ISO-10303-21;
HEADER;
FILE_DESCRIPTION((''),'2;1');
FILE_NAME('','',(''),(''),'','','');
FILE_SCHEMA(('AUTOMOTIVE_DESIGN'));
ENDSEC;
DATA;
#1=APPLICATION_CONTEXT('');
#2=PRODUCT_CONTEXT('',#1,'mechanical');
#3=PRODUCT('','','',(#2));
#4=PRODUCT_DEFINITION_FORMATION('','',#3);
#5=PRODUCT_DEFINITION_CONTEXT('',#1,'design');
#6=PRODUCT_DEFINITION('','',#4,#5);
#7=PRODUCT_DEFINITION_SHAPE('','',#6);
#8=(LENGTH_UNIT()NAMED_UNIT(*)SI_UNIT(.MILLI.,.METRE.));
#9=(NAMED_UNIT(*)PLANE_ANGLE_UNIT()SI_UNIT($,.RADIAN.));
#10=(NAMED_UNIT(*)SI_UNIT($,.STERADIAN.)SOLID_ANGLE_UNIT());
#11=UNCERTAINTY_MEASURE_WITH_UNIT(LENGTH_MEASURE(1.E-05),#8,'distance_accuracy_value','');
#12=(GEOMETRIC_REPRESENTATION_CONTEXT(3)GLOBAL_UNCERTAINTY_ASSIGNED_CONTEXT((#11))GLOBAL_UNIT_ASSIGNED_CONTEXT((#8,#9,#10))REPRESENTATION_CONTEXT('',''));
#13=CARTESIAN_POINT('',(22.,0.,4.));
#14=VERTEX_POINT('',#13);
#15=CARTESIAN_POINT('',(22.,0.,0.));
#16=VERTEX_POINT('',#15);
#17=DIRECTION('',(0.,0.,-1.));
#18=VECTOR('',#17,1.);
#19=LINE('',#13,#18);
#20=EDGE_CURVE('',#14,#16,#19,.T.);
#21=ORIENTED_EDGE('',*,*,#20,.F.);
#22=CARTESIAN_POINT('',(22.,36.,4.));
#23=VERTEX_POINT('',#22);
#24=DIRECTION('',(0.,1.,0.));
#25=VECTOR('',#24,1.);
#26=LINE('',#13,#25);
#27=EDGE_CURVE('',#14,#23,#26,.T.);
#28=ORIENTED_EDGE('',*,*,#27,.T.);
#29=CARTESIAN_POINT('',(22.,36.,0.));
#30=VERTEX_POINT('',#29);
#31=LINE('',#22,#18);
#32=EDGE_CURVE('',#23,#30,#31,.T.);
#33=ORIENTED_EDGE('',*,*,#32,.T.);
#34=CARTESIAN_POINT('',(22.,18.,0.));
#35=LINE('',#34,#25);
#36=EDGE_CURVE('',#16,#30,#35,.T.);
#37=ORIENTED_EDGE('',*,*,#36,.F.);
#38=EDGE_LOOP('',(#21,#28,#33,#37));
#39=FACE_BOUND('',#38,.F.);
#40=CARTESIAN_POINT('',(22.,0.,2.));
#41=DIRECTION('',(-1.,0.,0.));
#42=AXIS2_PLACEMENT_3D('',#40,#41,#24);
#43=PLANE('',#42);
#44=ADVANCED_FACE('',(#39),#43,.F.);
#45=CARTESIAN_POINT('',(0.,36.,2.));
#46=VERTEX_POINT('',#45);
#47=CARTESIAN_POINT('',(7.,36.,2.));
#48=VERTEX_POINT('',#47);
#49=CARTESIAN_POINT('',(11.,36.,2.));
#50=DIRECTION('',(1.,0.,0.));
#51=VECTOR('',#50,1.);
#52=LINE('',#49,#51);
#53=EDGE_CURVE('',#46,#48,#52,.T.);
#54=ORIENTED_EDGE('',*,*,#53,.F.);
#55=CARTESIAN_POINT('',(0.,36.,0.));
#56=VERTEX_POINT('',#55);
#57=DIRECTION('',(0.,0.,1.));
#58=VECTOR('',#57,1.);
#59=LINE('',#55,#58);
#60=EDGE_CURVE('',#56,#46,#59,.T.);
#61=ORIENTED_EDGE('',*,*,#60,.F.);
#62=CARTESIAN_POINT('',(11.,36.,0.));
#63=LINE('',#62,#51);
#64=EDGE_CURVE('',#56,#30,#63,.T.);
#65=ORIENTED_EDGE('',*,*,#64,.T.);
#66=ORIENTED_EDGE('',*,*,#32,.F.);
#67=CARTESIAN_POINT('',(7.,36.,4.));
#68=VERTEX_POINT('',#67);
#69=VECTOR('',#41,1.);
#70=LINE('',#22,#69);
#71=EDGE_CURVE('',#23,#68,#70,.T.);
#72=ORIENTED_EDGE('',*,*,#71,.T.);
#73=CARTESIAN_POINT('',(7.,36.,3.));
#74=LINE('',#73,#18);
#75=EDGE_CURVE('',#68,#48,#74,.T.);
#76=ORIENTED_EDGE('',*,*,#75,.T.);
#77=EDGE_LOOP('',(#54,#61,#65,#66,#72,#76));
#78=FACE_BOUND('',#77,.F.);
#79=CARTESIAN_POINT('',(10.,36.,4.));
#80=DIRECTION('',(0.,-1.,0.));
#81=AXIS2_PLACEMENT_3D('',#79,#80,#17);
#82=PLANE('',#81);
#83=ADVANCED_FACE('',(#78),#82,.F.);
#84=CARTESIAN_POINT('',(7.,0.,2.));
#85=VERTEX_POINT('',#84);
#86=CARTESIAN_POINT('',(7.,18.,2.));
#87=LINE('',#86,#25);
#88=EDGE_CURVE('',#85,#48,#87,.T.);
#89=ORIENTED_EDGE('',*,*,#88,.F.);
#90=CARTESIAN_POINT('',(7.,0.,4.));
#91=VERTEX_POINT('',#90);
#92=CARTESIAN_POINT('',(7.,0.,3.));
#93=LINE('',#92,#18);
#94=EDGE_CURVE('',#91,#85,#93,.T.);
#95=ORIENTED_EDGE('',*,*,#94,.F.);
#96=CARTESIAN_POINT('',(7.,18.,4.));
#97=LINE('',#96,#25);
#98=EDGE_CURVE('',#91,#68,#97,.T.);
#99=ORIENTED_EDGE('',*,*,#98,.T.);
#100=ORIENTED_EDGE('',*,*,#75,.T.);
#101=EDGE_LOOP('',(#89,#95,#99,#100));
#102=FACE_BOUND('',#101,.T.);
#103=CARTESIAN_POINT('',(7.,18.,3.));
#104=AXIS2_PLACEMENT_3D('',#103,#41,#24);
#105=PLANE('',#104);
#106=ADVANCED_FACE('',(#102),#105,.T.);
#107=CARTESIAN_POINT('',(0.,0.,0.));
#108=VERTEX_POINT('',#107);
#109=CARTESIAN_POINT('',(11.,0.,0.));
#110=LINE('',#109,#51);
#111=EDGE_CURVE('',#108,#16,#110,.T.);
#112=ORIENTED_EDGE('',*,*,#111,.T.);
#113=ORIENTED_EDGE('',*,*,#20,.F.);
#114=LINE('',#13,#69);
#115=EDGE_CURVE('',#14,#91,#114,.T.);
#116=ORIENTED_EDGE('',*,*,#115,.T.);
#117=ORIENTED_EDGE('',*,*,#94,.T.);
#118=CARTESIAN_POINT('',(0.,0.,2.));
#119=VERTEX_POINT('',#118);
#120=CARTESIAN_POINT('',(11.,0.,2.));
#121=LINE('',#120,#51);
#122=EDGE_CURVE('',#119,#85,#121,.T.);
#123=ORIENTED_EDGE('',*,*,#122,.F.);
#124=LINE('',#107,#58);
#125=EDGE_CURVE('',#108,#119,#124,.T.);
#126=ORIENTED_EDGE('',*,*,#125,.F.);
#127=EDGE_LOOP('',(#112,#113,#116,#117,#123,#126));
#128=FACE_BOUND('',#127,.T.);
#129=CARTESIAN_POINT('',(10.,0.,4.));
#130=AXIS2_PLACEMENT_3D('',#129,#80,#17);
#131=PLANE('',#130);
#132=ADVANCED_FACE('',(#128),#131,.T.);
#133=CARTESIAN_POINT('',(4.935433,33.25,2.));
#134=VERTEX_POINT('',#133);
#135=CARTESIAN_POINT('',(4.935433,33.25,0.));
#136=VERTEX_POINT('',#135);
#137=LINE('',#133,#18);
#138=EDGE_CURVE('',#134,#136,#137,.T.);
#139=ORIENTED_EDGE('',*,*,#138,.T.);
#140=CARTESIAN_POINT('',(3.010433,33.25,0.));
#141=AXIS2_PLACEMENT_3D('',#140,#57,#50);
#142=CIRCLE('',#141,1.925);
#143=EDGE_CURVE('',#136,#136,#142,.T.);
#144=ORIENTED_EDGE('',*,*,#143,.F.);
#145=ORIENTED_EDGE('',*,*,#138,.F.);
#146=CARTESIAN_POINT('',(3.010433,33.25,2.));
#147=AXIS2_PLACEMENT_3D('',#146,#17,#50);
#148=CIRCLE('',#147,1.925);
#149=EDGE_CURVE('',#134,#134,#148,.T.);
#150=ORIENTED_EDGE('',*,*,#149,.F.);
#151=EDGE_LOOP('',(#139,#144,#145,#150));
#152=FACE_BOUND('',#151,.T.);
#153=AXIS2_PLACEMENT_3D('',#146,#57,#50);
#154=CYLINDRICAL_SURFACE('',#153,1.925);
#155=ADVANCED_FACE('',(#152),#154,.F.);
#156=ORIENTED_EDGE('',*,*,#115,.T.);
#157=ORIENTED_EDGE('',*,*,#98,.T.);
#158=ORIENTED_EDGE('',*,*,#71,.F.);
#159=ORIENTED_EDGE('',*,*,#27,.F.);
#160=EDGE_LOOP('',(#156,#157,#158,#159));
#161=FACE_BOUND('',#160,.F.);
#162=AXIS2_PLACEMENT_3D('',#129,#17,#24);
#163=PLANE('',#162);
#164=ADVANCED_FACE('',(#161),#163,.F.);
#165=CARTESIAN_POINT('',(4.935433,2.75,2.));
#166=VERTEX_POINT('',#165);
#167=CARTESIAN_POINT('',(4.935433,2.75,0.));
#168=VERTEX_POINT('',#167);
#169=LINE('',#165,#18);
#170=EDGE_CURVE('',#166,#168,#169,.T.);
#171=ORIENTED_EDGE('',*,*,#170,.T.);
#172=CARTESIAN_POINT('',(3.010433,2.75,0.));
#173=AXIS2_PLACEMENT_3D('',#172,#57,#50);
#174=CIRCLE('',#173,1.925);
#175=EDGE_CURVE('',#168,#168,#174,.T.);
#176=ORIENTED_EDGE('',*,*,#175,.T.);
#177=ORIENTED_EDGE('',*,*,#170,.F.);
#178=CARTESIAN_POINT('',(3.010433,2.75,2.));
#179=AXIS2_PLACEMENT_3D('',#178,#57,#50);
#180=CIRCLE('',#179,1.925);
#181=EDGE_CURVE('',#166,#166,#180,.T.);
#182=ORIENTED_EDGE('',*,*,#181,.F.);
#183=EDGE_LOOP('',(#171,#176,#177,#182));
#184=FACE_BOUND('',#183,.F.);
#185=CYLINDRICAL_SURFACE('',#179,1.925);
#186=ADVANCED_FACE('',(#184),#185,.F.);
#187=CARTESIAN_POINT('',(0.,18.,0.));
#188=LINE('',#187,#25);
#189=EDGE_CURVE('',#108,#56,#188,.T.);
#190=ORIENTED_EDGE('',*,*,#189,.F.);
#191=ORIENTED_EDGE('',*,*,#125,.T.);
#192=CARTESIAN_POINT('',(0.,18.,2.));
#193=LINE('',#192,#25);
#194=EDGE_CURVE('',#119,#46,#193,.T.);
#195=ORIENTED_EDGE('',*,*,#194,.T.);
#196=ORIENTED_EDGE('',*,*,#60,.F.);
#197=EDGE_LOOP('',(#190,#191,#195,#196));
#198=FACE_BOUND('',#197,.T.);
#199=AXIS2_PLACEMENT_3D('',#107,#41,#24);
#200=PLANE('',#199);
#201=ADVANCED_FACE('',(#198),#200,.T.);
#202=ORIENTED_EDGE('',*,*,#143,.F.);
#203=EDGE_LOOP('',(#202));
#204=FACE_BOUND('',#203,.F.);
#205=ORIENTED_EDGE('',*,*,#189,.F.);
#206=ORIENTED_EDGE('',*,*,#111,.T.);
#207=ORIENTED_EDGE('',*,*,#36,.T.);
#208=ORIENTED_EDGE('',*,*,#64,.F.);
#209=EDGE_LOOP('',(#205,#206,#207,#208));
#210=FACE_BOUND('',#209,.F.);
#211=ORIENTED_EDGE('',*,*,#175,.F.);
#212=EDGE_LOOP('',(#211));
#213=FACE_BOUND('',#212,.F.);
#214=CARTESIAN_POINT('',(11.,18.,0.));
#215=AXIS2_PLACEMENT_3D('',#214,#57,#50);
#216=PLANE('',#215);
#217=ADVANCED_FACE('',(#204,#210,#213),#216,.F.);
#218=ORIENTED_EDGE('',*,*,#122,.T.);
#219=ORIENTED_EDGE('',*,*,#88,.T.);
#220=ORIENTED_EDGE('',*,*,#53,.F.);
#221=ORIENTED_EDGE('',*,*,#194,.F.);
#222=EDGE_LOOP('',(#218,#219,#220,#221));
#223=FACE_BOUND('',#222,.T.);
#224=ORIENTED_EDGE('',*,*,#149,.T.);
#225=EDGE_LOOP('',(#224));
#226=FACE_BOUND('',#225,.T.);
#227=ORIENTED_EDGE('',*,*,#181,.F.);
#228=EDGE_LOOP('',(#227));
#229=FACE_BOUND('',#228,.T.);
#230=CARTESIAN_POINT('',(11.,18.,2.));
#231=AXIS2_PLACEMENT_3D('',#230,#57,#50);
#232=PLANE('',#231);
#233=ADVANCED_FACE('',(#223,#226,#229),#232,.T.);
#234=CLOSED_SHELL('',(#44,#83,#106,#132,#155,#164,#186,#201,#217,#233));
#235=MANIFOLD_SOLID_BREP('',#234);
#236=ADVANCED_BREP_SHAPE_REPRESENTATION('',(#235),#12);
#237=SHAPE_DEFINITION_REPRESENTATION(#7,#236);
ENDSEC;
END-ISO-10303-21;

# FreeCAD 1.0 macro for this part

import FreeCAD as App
import Part
import Sketcher
Q = App.Units.Quantity


def add_polygon(sketch, points):
    """Adds a closed chain of lines whose ends are joined by coincident constraints."""
    first, n = sketch.GeometryCount, len(points)
    for a, b in zip(points, points[1:] + points[:1]):
        sketch.addGeometry(Part.LineSegment(App.Vector(*a, 0), App.Vector(*b, 0)), False)
    for i in range(n):
        sketch.addConstraint(Sketcher.Constraint("Coincident", first + i, 2, first + (i + 1) % n, 1))

doc = App.newDocument("Part")
body = doc.addObject("PartDesign::Body", "Body")

# Sketch on XY plane
sketch1 = body.newObject("Sketcher::SketchObject", "Sketch")
sketch1.AttachmentSupport = (doc.getObject("XY_Plane"), [""])
sketch1.MapMode = "FlatFace"
add_polygon(sketch1, [(0, 36), (0, 0), (22, 0), (22, 36)])  # lines 0-3
sketch1.addConstraint(Sketcher.Constraint("Vertical", 0))
sketch1.addConstraint(Sketcher.Constraint("Horizontal", 1))
sketch1.addConstraint(Sketcher.Constraint("Vertical", 2))
sketch1.addConstraint(Sketcher.Constraint("Horizontal", 3))
sketch1.addConstraint(Sketcher.Constraint("Coincident", 0, 2, -1, 1))
sketch1.addConstraint(Sketcher.Constraint("DistanceX", 1, 1, 1, 2, Q("22 mm")))
sketch1.addConstraint(Sketcher.Constraint("DistanceY", 0, 2, 0, 1, Q("36 mm")))
pad1 = body.newObject("PartDesign::Pad", "Pad")
pad1.Profile = sketch1
pad1.Length = 2

# Sketch on XY plane
sketch2 = body.newObject("Sketcher::SketchObject", "Sketch001")
sketch2.AttachmentSupport = (doc.getObject("XY_Plane"), [""])
sketch2.MapMode = "FlatFace"
sketch2.AttachmentOffset = App.Placement(App.Vector(0, 0, 2), App.Rotation())
sketch2.addGeometry(Part.Circle(App.Vector(3, 2.8, 0), App.Vector(0, 0, 1), 1.9), False)
sketch2.addConstraint(Sketcher.Constraint("Diameter", 0, Q("3.85 mm")))
sketch2.addConstraint(Sketcher.Constraint("DistanceY", -1, 1, 0, 3, Q("2.75 mm")))
sketch2.addConstraint(Sketcher.Constraint("DistanceX", -1, 1, 0, 3, Q("3.010433 mm")))
pocket1 = body.newObject("PartDesign::Pocket", "Pocket")
pocket1.Profile = sketch2
pocket1.Type = "ThroughAll"
doc.recompute()

datumplane = body.newObject("PartDesign::Plane", "DatumPlane")
datumplane.AttachmentSupport = (doc.getObject("XZ_Plane"), [""])
datumplane.MapMode = "FlatFace"
datumplane.AttachmentOffset = App.Placement(App.Vector(0, 0, -18), App.Rotation())
mirrored = body.newObject("PartDesign::Mirrored", "Mirrored")
mirrored.Originals = [pocket1]
mirrored.MirrorPlane = (datumplane, [""])
body.Tip = mirrored

# Sketch on XY plane
sketch3 = body.newObject("Sketcher::SketchObject", "Sketch002")
sketch3.AttachmentSupport = (doc.getObject("XY_Plane"), [""])
sketch3.MapMode = "FlatFace"
sketch3.AttachmentOffset = App.Placement(App.Vector(0, 0, 2), App.Rotation())
add_polygon(sketch3, [(10, 36), (10, 34), (20, 34), (20, 2), (10, 2), (10, 0), (22, 0), (22, 36)])  # lines 0-7
sketch3.addConstraint(Sketcher.Constraint("Vertical", 0))
sketch3.addConstraint(Sketcher.Constraint("Horizontal", 1))
sketch3.addConstraint(Sketcher.Constraint("Vertical", 2))
sketch3.addConstraint(Sketcher.Constraint("Horizontal", 3))
sketch3.addConstraint(Sketcher.Constraint("Vertical", 4))
sketch3.addConstraint(Sketcher.Constraint("Horizontal", 5))
sketch3.addConstraint(Sketcher.Constraint("Vertical", 6))
sketch3.addConstraint(Sketcher.Constraint("Horizontal", 7))
sketch3.addConstraint(Sketcher.Constraint("PointOnObject", 4, 2, -1))
sketch3.addConstraint(Sketcher.Constraint("Vertical", 0, 2, 3, 2))
sketch3.addConstraint(Sketcher.Constraint("Equal", 0, 4))
sketch3.addConstraint(Sketcher.Constraint("DistanceX", 1, 1, 1, 2, Q("10 mm")))
sketch3.addConstraint(Sketcher.Constraint("DistanceX", 5, 1, 5, 2, Q("12 mm")))
sketch3.addConstraint(Sketcher.Constraint("DistanceY", 0, 2, 0, 1, Q("2 mm")))
sketch3.addConstraint(Sketcher.Constraint("DistanceY", 2, 2, 2, 1, Q("32 mm")))
sketch3.addConstraint(Sketcher.Constraint("DistanceX", -1, 1, 0, 2, Q("10 mm")))
pad2 = body.newObject("PartDesign::Pad", "Pad001")
pad2.Profile = sketch3
pad2.Length = 2

# Sketch on YZ plane
sketch4 = body.newObject("Sketcher::SketchObject", "Sketch003")
sketch4.AttachmentSupport = (doc.getObject("YZ_Plane"), [""])
sketch4.MapMode = "FlatFace"
sketch4.AttachmentOffset = App.Placement(App.Vector(0, 0, 20), App.Rotation())
add_polygon(sketch4, [(2, 2), (2, 4), (34, 4), (34, 2)])  # lines 0-3
sketch4.addConstraint(Sketcher.Constraint("Vertical", 0))
sketch4.addConstraint(Sketcher.Constraint("Horizontal", 1))
sketch4.addConstraint(Sketcher.Constraint("Vertical", 2))
sketch4.addConstraint(Sketcher.Constraint("Horizontal", 3))
sketch4.addConstraint(Sketcher.Constraint("DistanceX", 1, 1, 1, 2, Q("32 mm")))
sketch4.addConstraint(Sketcher.Constraint("DistanceY", 0, 1, 0, 2, Q("2 mm")))
sketch4.addConstraint(Sketcher.Constraint("DistanceX", -1, 1, 0, 2, Q("2 mm")))
sketch4.addConstraint(Sketcher.Constraint("DistanceY", -1, 1, 0, 2, Q("4 mm")))
pad3 = body.newObject("PartDesign::Pad", "Pad002")
pad3.Profile = sketch4
pad3.Length = 10
pad3.Reversed = True

# Sketch on YZ plane
sketch5 = body.newObject("Sketcher::SketchObject", "Sketch004")
sketch5.AttachmentSupport = (doc.getObject("YZ_Plane"), [""])
sketch5.MapMode = "FlatFace"
sketch5.AttachmentOffset = App.Placement(App.Vector(0, 0, 10), App.Rotation())
add_polygon(sketch5, [(0, 2), (0, 4), (36, 4), (36, 2)])  # lines 0-3
sketch5.addConstraint(Sketcher.Constraint("Vertical", 0))
sketch5.addConstraint(Sketcher.Constraint("Horizontal", 1))
sketch5.addConstraint(Sketcher.Constraint("Vertical", 2))
sketch5.addConstraint(Sketcher.Constraint("Horizontal", 3))
sketch5.addConstraint(Sketcher.Constraint("PointOnObject", 0, 2, -2))
sketch5.addConstraint(Sketcher.Constraint("DistanceX", 1, 1, 1, 2, Q("36 mm")))
sketch5.addConstraint(Sketcher.Constraint("DistanceY", 0, 1, 0, 2, Q("2 mm")))
sketch5.addConstraint(Sketcher.Constraint("DistanceY", -1, 1, 0, 2, Q("4 mm")))
pad4 = body.newObject("PartDesign::Pad", "Pad003")
pad4.Profile = sketch5
pad4.Length = 3
pad4.Reversed = True

doc.recompute()
